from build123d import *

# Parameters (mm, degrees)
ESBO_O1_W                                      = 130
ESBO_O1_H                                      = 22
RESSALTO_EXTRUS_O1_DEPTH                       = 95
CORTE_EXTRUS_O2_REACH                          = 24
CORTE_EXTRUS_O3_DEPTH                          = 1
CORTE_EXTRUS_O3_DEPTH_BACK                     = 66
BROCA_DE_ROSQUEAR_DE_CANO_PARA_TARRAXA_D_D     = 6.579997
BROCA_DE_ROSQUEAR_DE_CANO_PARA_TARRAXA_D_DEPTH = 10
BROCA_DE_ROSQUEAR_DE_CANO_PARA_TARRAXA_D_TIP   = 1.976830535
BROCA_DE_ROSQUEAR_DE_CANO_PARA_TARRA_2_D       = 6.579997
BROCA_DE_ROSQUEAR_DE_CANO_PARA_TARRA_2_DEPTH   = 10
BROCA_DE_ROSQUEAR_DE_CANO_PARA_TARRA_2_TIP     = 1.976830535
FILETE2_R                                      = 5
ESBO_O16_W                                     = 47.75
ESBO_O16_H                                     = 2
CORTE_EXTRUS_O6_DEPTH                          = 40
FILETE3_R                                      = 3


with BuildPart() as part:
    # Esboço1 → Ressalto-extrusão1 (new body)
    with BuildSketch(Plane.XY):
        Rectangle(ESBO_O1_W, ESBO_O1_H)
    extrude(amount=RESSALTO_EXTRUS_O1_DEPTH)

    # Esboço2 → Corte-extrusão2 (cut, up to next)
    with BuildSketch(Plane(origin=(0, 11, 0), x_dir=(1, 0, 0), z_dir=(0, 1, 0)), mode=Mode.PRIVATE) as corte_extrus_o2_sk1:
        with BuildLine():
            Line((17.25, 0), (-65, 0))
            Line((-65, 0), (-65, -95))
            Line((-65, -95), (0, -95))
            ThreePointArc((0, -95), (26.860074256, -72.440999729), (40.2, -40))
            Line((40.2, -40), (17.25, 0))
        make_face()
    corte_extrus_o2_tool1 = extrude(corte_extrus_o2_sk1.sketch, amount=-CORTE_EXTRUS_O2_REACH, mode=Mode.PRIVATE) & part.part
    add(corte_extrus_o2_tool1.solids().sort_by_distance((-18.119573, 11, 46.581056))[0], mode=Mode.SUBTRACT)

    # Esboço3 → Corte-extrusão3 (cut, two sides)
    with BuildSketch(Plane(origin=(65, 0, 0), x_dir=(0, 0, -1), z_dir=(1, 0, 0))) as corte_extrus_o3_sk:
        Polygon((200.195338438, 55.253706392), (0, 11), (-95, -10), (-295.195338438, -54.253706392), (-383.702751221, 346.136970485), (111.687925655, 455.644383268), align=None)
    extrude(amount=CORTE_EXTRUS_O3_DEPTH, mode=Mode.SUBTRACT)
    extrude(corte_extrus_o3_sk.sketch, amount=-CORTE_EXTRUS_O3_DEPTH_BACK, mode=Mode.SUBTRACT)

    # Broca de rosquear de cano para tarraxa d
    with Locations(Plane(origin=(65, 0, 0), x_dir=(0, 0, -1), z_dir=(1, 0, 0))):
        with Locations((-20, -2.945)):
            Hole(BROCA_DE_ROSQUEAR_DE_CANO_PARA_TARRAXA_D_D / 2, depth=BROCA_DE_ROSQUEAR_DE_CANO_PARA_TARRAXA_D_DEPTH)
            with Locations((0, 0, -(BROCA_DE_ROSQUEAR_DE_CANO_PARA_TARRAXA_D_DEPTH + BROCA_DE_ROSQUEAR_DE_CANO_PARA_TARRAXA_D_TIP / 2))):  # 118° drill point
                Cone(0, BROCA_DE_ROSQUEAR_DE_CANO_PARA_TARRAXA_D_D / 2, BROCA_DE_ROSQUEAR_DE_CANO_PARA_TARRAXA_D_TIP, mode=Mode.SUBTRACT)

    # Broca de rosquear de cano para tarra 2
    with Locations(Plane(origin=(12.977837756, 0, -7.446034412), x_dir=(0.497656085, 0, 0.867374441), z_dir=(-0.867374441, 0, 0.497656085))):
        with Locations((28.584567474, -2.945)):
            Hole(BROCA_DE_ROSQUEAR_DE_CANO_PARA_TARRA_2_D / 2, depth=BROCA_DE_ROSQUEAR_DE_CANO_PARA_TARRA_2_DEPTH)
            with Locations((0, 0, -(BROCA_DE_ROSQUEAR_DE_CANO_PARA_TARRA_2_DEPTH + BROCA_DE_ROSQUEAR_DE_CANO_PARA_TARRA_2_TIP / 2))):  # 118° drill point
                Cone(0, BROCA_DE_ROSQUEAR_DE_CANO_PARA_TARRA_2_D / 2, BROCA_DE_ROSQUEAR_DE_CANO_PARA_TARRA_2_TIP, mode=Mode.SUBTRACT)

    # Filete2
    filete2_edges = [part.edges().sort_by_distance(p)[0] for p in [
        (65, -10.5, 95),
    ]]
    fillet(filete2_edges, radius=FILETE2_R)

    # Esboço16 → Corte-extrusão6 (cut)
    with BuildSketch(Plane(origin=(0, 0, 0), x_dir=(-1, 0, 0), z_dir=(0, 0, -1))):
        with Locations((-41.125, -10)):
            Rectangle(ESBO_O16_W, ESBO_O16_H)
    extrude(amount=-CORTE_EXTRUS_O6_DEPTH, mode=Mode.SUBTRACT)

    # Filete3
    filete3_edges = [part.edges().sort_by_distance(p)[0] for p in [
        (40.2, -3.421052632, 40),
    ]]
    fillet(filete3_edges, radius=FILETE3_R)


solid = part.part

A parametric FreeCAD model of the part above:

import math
import FreeCAD as App
import Part
import Sketcher

V = App.Vector


def edges_at(feature, points):
    """Names of the edges that pass closest to the given points."""
    edges = feature.Shape.Edges
    near = lambda p: min(range(len(edges)), key=lambda i: edges[i].distToShape(Part.Vertex(*p))[0])
    return sorted({f"Edge{near(p) + 1}" for p in points})

doc = App.newDocument("Part")
body = doc.addObject("PartDesign::Body", "Body")

sketch1 = body.newObject("Sketcher::SketchObject", "Sketch")
sketch1.AttachmentSupport = (doc.getObject("XY_Plane"), [""])
sketch1.MapMode = "FlatFace"
sketch1.addGeometry(Part.LineSegment(V(-65, 11, 0), V(-65, -11, 0)), False)
sketch1.addGeometry(Part.LineSegment(V(-65, -11, 0), V(65, -11, 0)), False)
sketch1.addGeometry(Part.LineSegment(V(65, -11, 0), V(65, 11, 0)), False)
sketch1.addGeometry(Part.LineSegment(V(65, 11, 0), V(-65, 11, 0)), False)
sketch1.addConstraint(Sketcher.Constraint("Coincident", 0, 2, 1, 1))
sketch1.addConstraint(Sketcher.Constraint("Coincident", 1, 2, 2, 1))
sketch1.addConstraint(Sketcher.Constraint("Coincident", 2, 2, 3, 1))
sketch1.addConstraint(Sketcher.Constraint("Coincident", 3, 2, 0, 1))
sketch1.addConstraint(Sketcher.Constraint("Vertical", 0))
sketch1.addConstraint(Sketcher.Constraint("Horizontal", 1))
sketch1.addConstraint(Sketcher.Constraint("Vertical", 2))
sketch1.addConstraint(Sketcher.Constraint("Horizontal", 3))
sketch1.addConstraint(Sketcher.Constraint("Symmetric", 0, 2, 2, 2, -1, 1))
sketch1.addConstraint(Sketcher.Constraint("DistanceX", 1, 1, 1, 2, 130.0))
sketch1.addConstraint(Sketcher.Constraint("DistanceY", 0, 2, 0, 1, 22.0))
pad1 = body.newObject("PartDesign::Pad", "Pad")
pad1.Profile = sketch1
pad1.Length = 95

sketch2 = body.newObject("Sketcher::SketchObject", "Sketch001")
sketch2.AttachmentSupport = (doc.getObject("XZ_Plane"), [""])
sketch2.MapMode = "FlatFace"
sketch2.AttachmentOffset = App.Placement(V(0, 0, -11), App.Rotation())
sketch2.addGeometry(Part.LineSegment(V(17, 0, 0), V(-65, 0, 0)), False)
sketch2.addGeometry(Part.LineSegment(V(-65, 0, 0), V(-65, 95, 0)), False)
sketch2.addGeometry(Part.LineSegment(V(-65, 95, 0), V(0, 95, 0)), False)
sketch2.addGeometry(Part.ArcOfCircle(Part.Circle(V(-32, 29, 0), V(0, 0, 1), 73), math.radians(9), math.radians(64)), False)
sketch2.addGeometry(Part.LineSegment(V(40, 40, 0), V(17, 0, 0)), False)
sketch2.addConstraint(Sketcher.Constraint("Coincident", 0, 2, 1, 1))
sketch2.addConstraint(Sketcher.Constraint("Coincident", 1, 2, 2, 1))
sketch2.addConstraint(Sketcher.Constraint("Coincident", 2, 2, 3, 2))
sketch2.addConstraint(Sketcher.Constraint("Coincident", 3, 1, 4, 1))
sketch2.addConstraint(Sketcher.Constraint("Coincident", 4, 2, 0, 1))
sketch2.addConstraint(Sketcher.Constraint("Horizontal", 0))
sketch2.addConstraint(Sketcher.Constraint("Vertical", 1))
sketch2.addConstraint(Sketcher.Constraint("Horizontal", 2))
sketch2.addConstraint(Sketcher.Constraint("PointOnObject", 0, 2, -1))
sketch2.addConstraint(Sketcher.Constraint("PointOnObject", 2, 2, -2))
sketch2.addConstraint(Sketcher.Constraint("DistanceX", 2, 1, 2, 2, 65.0))
sketch2.addConstraint(Sketcher.Constraint("DistanceY", 1, 1, 1, 2, 95.0))
sketch2.addConstraint(Sketcher.Constraint("Radius", 3, 73.47))
sketch2.addConstraint(Sketcher.Constraint("DistanceY", -1, 1, 3, 1, 40.0))
sketch2.addConstraint(Sketcher.Constraint("DistanceX", 0, 2, 0, 1, 82.25))
sketch2.addConstraint(Sketcher.Constraint("DistanceX", -1, 1, 3, 1, 40.2))
pocket1 = body.newObject("PartDesign::Pocket", "Pocket")
pocket1.Profile = sketch2
pocket1.Type = "UpToFirst"
pocket1.Reversed = True

sketch3 = body.newObject("Sketcher::SketchObject", "Sketch002")
sketch3.AttachmentSupport = (doc.getObject("YZ_Plane"), [""])
sketch3.MapMode = "FlatFace"
sketch3.AttachmentOffset = App.Placement(V(0, 0, 65), App.Rotation())
sketch3.addGeometry(Part.LineSegment(V(11, 0, 0), V(55, -200, 0)), False)
sketch3.addGeometry(Part.LineSegment(V(55, -200, 0), V(456, -112, 0)), False)
sketch3.addGeometry(Part.LineSegment(V(456, -112, 0), V(346, 384, 0)), False)
sketch3.addGeometry(Part.LineSegment(V(346, 384, 0), V(-54, 295, 0)), False)
sketch3.addGeometry(Part.LineSegment(V(-54, 295, 0), V(-10, 95, 0)), False)
sketch3.addGeometry(Part.LineSegment(V(-10, 95, 0), V(11, 0, 0)), False)
sketch3.addConstraint(Sketcher.Constraint("Coincident", 0, 2, 1, 1))
sketch3.addConstraint(Sketcher.Constraint("Coincident", 1, 2, 2, 1))
sketch3.addConstraint(Sketcher.Constraint("Coincident", 2, 2, 3, 1))
sketch3.addConstraint(Sketcher.Constraint("Coincident", 3, 2, 4, 1))
sketch3.addConstraint(Sketcher.Constraint("Coincident", 4, 2, 5, 1))
sketch3.addConstraint(Sketcher.Constraint("Coincident", 5, 2, 0, 1))
sketch3.addConstraint(Sketcher.Constraint("PointOnObject", 5, 2, -1))
sketch3.addConstraint(Sketcher.Constraint("Perpendicular", 0, 1))
sketch3.addConstraint(Sketcher.Constraint("Perpendicular", 1, 2))
sketch3.addConstraint(Sketcher.Constraint("Perpendicular", 2, 3))
sketch3.addConstraint(Sketcher.Constraint("Perpendicular", 3, 4))
sketch3.addConstraint(Sketcher.Constraint("Parallel", 4, 5))
sketch3.addConstraint(Sketcher.Constraint("Equal", 0, 4))
sketch3.addConstraint(Sketcher.Constraint("DistanceX", 4, 2, -1, 1, 10.0))
sketch3.addConstraint(Sketcher.Constraint("DistanceY", -1, 1, 4, 2, 95.0))
sketch3.addConstraint(Sketcher.Constraint("DistanceX", -1, 1, 5, 2, 11.0))
sketch3.addConstraint(Sketcher.Constraint("DistanceY", 0, 2, -1, 1, 200.195338))
sketch3.addConstraint(Sketcher.Constraint("DistanceX", -1, 1, 2, 2, 346.13697))
pocket2 = body.newObject("PartDesign::Pocket", "Pocket001")
pocket2.Profile = sketch3
pocket2.Type = "ThroughAll"
pocket2.Midplane = True

sketch4 = body.newObject("Sketcher::SketchObject", "Sketch003")
sketch4.AttachmentSupport = (doc.getObject("YZ_Plane"), [""])
sketch4.MapMode = "FlatFace"
sketch4.AttachmentOffset = App.Placement(V(0, 0, 65), App.Rotation())
sketch4.addGeometry(Part.Circle(V(-2.9, 20, 0), V(0, 0, 1), 3.3), False)
sketch4.addConstraint(Sketcher.Constraint("DistanceY", -1, 1, 0, 3, 20.0))
sketch4.addConstraint(Sketcher.Constraint("Diameter", 0, 6.579997))
sketch4.addConstraint(Sketcher.Constraint("DistanceX", 0, 3, -1, 1, 2.945))
doc.recompute()
hole = body.newObject("PartDesign::Hole", "Hole")
hole.Profile = sketch4
hole.ThreadType = "None"
hole.Diameter = 6.579997
hole.DepthType = "Dimension"
hole.Depth = 10
hole.DrillPoint = "Angled"
hole.DrillPointAngle = 118

sketch5 = body.newObject("Sketcher::SketchObject", "Sketch004")
sketch5.Placement = App.Placement(V(12.977838, 0, -7.446034), App.Rotation(V(0.497656085, 0, 0.867374441), V(0, 1, 0), V(-0.867374441, 0, 0.497656085), "ZXY"))
sketch5.addGeometry(Part.Circle(V(28.6, -2.9, 0), V(0, 0, 1), 3.3), False)
sketch5.addConstraint(Sketcher.Constraint("Diameter", 0, 6.579997))
sketch5.addConstraint(Sketcher.Constraint("DistanceY", 0, 3, -1, 1, 2.945))
sketch5.addConstraint(Sketcher.Constraint("DistanceX", -1, 1, 0, 3, 28.584567))
doc.recompute()
hole2 = body.newObject("PartDesign::Hole", "Hole001")
hole2.Profile = sketch5
hole2.ThreadType = "None"
hole2.Diameter = 6.579997
hole2.DepthType = "Dimension"
hole2.Depth = 10
hole2.DrillPoint = "Angled"
hole2.DrillPointAngle = 118
doc.recompute()

fillet = body.newObject("PartDesign::Fillet", "Fillet")
fillet.Base = (hole2, edges_at(hole2, [(65, -10.5, 95)]))
fillet.Radius = 5

sketch6 = body.newObject("Sketcher::SketchObject", "Sketch005")
sketch6.AttachmentSupport = (doc.getObject("XY_Plane"), [""])
sketch6.MapMode = "FlatFace"
sketch6.addGeometry(Part.LineSegment(V(65, -9, 0), V(65, -11, 0)), False)
sketch6.addGeometry(Part.LineSegment(V(65, -11, 0), V(17.2, -11, 0)), False)
sketch6.addGeometry(Part.LineSegment(V(17.2, -11, 0), V(17.2, -9, 0)), False)
sketch6.addGeometry(Part.LineSegment(V(17.2, -9, 0), V(65, -9, 0)), False)
sketch6.addConstraint(Sketcher.Constraint("Coincident", 0, 2, 1, 1))
sketch6.addConstraint(Sketcher.Constraint("Coincident", 1, 2, 2, 1))
sketch6.addConstraint(Sketcher.Constraint("Coincident", 2, 2, 3, 1))
sketch6.addConstraint(Sketcher.Constraint("Coincident", 3, 2, 0, 1))
sketch6.addConstraint(Sketcher.Constraint("Vertical", 0))
sketch6.addConstraint(Sketcher.Constraint("Horizontal", 1))
sketch6.addConstraint(Sketcher.Constraint("Vertical", 2))
sketch6.addConstraint(Sketcher.Constraint("Horizontal", 3))
sketch6.addConstraint(Sketcher.Constraint("DistanceY", 0, 2, 0, 1, 2.0))
sketch6.addConstraint(Sketcher.Constraint("DistanceX", -1, 1, 0, 2, 65.0))
sketch6.addConstraint(Sketcher.Constraint("DistanceY", 0, 2, -1, 1, 11.0))
sketch6.addConstraint(Sketcher.Constraint("DistanceX", 1, 2, 1, 1, 47.75))
pocket3 = body.newObject("PartDesign::Pocket", "Pocket002")
pocket3.Profile = sketch6
pocket3.Length = 40
pocket3.Reversed = True
doc.recompute()

fillet2 = body.newObject("PartDesign::Fillet", "Fillet001")
fillet2.Base = (pocket3, edges_at(pocket3, [(40.2, -3.421, 40)]))
fillet2.Radius = 3

doc.recompute()
